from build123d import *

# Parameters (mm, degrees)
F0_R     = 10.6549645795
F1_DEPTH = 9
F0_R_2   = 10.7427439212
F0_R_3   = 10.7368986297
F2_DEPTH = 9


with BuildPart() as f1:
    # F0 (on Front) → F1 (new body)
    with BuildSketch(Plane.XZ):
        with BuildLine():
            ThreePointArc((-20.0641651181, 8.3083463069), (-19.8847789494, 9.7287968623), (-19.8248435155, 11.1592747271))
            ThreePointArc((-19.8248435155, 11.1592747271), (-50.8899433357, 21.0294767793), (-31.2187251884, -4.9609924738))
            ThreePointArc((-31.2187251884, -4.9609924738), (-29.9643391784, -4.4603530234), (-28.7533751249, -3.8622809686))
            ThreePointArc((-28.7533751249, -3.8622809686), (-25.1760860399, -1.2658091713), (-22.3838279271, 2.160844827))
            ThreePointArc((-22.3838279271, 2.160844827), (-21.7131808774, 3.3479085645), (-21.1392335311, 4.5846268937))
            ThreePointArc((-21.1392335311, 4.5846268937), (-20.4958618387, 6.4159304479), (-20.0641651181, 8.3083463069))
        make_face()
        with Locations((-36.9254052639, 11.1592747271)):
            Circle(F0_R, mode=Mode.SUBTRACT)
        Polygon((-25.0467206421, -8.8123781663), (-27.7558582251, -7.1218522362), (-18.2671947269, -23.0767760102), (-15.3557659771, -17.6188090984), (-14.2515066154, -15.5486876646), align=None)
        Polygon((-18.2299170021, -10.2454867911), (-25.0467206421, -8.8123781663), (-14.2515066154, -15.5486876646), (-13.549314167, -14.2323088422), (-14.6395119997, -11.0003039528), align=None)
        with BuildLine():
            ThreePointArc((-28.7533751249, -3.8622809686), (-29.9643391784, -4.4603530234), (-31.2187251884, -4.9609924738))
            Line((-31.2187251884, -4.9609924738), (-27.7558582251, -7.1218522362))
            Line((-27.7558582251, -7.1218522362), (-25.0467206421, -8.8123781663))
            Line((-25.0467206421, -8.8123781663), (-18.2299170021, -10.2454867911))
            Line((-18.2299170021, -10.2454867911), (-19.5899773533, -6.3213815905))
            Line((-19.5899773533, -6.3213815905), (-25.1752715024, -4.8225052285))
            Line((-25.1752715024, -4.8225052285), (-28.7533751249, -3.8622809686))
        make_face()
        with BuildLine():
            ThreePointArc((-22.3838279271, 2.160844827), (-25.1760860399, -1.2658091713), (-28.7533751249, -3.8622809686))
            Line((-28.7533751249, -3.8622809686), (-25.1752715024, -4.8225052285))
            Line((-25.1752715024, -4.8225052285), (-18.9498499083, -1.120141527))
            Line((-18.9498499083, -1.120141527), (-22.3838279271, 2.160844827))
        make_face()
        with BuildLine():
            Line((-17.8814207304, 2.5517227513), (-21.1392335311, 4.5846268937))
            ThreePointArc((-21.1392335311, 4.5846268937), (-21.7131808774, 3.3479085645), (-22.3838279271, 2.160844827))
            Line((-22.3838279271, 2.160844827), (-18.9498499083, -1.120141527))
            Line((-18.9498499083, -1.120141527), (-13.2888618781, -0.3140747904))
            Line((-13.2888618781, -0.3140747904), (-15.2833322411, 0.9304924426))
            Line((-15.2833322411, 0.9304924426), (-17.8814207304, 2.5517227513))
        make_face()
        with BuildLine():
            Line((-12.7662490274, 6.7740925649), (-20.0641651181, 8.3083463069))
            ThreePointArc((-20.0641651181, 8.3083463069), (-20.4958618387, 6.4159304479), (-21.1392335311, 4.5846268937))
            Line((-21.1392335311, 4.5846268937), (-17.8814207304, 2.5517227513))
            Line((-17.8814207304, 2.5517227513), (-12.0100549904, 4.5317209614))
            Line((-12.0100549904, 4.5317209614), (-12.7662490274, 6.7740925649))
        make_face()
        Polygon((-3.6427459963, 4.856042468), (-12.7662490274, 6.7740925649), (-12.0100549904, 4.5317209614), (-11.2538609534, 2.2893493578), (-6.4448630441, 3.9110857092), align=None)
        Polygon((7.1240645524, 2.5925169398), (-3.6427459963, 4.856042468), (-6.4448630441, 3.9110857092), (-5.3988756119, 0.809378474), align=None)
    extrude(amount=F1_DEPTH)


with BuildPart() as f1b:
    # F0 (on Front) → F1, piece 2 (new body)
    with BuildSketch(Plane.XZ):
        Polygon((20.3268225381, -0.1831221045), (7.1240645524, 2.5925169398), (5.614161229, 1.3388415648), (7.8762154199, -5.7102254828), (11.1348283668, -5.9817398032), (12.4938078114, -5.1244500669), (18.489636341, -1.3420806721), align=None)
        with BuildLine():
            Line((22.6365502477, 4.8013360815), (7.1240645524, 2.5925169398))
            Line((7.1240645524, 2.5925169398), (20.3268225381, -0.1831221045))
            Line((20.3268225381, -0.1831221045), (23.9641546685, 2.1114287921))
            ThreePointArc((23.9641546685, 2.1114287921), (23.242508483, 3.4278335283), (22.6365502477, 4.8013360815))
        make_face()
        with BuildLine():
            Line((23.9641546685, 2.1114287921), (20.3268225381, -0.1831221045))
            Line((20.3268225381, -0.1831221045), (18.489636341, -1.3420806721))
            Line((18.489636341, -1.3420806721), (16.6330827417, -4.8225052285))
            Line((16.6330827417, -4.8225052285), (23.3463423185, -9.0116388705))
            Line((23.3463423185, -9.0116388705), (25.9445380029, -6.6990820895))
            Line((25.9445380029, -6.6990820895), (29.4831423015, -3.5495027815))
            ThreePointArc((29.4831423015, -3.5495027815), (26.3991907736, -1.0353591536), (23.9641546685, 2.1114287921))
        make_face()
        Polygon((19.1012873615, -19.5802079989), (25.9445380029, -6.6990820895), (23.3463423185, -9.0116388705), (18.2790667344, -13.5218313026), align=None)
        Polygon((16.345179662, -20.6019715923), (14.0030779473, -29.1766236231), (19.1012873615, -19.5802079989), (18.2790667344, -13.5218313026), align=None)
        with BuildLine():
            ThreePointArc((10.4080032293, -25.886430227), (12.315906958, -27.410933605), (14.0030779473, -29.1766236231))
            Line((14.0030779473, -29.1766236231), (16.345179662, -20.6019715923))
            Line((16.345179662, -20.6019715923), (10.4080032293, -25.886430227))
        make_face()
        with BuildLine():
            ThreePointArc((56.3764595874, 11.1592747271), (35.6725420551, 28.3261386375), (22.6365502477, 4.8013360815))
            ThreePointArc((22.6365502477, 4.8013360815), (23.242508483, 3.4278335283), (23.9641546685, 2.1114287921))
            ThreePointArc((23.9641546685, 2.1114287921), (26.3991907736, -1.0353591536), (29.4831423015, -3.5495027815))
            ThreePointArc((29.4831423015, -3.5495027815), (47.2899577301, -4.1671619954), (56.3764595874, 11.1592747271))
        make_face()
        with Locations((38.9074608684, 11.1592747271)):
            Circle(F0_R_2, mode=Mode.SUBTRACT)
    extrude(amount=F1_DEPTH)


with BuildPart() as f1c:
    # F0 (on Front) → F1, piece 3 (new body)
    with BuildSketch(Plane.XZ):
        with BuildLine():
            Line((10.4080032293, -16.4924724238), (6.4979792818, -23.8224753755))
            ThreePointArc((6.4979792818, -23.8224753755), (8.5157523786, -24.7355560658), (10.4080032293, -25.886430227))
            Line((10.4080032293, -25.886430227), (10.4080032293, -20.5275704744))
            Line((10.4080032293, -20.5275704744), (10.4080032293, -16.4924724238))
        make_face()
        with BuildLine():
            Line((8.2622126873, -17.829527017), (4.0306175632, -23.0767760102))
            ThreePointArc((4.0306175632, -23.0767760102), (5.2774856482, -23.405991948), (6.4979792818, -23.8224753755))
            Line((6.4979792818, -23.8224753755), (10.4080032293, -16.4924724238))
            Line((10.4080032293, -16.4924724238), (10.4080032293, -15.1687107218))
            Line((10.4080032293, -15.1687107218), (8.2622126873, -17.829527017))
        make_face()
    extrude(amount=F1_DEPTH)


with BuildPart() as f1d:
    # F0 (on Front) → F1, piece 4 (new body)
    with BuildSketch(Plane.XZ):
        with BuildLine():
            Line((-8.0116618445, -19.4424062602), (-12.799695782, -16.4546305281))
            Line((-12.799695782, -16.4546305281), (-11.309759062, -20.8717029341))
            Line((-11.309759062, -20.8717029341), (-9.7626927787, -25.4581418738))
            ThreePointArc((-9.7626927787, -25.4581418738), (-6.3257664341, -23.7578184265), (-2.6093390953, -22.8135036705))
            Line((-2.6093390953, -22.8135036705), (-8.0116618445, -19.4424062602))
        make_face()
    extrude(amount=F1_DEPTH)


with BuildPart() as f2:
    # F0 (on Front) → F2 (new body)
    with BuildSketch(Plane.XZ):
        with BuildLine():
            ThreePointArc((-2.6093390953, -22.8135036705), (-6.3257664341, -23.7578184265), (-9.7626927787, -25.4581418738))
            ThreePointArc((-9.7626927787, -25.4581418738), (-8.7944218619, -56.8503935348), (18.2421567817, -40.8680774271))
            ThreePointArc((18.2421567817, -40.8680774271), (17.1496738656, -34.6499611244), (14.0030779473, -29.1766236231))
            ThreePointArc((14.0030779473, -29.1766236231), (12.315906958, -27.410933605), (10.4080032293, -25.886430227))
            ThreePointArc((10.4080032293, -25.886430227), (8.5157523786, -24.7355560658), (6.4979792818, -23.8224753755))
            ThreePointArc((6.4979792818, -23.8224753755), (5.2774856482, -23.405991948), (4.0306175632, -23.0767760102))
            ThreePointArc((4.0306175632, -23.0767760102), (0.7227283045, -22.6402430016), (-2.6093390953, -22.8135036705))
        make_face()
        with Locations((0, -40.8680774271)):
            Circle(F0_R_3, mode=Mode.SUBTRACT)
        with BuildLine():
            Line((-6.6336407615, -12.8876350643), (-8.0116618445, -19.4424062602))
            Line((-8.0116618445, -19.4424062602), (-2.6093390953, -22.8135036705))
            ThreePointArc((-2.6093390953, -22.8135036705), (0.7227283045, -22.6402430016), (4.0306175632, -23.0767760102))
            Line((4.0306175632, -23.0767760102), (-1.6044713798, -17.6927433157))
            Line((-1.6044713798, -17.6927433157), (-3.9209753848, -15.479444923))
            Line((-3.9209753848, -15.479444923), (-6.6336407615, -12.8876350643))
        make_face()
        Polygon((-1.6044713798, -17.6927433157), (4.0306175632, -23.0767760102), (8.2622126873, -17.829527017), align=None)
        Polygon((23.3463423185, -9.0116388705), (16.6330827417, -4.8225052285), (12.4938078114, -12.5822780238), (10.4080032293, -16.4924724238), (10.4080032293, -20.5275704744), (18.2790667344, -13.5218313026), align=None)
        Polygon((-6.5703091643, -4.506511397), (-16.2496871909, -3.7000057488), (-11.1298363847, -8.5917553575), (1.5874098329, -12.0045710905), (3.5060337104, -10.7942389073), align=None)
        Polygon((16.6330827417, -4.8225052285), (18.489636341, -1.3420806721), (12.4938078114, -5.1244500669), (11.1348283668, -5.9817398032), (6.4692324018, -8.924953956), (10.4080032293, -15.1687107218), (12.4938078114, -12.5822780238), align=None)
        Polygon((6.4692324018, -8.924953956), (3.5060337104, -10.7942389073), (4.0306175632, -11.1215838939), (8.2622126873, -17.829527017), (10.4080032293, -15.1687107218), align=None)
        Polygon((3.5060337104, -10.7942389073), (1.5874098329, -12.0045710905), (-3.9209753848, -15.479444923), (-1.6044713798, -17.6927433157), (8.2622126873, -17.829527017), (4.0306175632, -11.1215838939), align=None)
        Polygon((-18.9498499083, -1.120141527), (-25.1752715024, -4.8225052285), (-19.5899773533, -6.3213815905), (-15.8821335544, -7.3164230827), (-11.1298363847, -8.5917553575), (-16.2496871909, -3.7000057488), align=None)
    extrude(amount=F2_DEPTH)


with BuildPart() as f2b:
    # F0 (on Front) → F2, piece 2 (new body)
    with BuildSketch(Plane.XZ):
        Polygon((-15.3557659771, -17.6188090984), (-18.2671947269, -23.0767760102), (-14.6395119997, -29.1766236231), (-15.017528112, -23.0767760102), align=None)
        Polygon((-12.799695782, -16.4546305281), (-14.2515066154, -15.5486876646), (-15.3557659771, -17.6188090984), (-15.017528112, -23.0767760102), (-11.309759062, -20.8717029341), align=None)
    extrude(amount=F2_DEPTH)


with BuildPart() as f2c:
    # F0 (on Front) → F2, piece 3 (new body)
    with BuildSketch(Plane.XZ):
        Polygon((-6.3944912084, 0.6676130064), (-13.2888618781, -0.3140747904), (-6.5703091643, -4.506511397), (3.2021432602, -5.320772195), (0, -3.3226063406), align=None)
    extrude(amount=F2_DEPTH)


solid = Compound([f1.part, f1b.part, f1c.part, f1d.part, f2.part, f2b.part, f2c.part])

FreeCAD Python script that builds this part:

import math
import FreeCAD as App
import Part
import Sketcher

V = App.Vector
Q = App.Units.Quantity

doc = App.newDocument("Part")
body = doc.addObject("PartDesign::Body", "Body")

# Sketch on XZ plane
sketch1 = body.newObject("Sketcher::SketchObject", "Sketch")
sketch1.AttachmentSupport = (doc.getObject("XZ_Plane"), [""])
sketch1.MapMode = "FlatFace"
sketch1.addGeometry(Part.ArcOfCircle(Part.Circle(V(-36.9, 11.2, 0), V(0, 0, 1), 17.1), math.radians(-9.6), math.radians(0)), False)
sketch1.addGeometry(Part.ArcOfCircle(Part.Circle(V(-36.9, 11.2, 0), V(0, 0, 1), 17.1), math.radians(0), math.radians(289)), False)
sketch1.addGeometry(Part.LineSegment(V(-31.2, -5, 0), V(-27.8, -7.1, 0)), False)
sketch1.addGeometry(Part.LineSegment(V(-27.8, -7.1, 0), V(-18.3, -23.1, 0)), False)
sketch1.addGeometry(Part.LineSegment(V(-18.3, -23.1, 0), V(-15.4, -17.6, 0)), False)
sketch1.addGeometry(Part.LineSegment(V(-15.4, -17.6, 0), V(-14.3, -15.5, 0)), False)
sketch1.addGeometry(Part.LineSegment(V(-14.3, -15.5, 0), V(-13.5, -14.2, 0)), False)
sketch1.addGeometry(Part.LineSegment(V(-13.5, -14.2, 0), V(-14.6, -11, 0)), False)
sketch1.addGeometry(Part.LineSegment(V(-14.6, -11, 0), V(-18.2, -10.2, 0)), False)
sketch1.addGeometry(Part.LineSegment(V(-18.2, -10.2, 0), V(-19.6, -6.3, 0)), False)
sketch1.addGeometry(Part.LineSegment(V(-19.6, -6.3, 0), V(-25.2, -4.8, 0)), False)
sketch1.addGeometry(Part.LineSegment(V(-25.2, -4.8, 0), V(-18.9, -1.1, 0)), False)
sketch1.addGeometry(Part.LineSegment(V(-18.9, -1.1, 0), V(-13.3, -0.3, 0)), False)
sketch1.addGeometry(Part.LineSegment(V(-13.3, -0.3, 0), V(-15.3, 0.9, 0)), False)
sketch1.addGeometry(Part.LineSegment(V(-15.3, 0.9, 0), V(-17.9, 2.6, 0)), False)
sketch1.addGeometry(Part.LineSegment(V(-17.9, 2.6, 0), V(-12, 4.5, 0)), False)
sketch1.addGeometry(Part.LineSegment(V(-12, 4.5, 0), V(-11.3, 2.3, 0)), False)
sketch1.addGeometry(Part.LineSegment(V(-11.3, 2.3, 0), V(-6.4, 3.9, 0)), False)
sketch1.addGeometry(Part.LineSegment(V(-6.4, 3.9, 0), V(-5.4, 0.8, 0)), False)
sketch1.addGeometry(Part.LineSegment(V(-5.4, 0.8, 0), V(7.1, 2.6, 0)), False)
sketch1.addGeometry(Part.LineSegment(V(7.1, 2.6, 0), V(-3.6, 4.9, 0)), False)
sketch1.addGeometry(Part.LineSegment(V(-3.6, 4.9, 0), V(-12.8, 6.8, 0)), False)
sketch1.addGeometry(Part.LineSegment(V(-12.8, 6.8, 0), V(-20.1, 8.3, 0)), False)
sketch1.addGeometry(Part.Circle(V(-36.9, 11.2, 0), V(0, 0, 1), 10.7), False)
sketch1.addConstraint(Sketcher.Constraint("Tangent", 0, 2, 1, 1))
sketch1.addConstraint(Sketcher.Constraint("Coincident", 1, 2, 2, 1))
sketch1.addConstraint(Sketcher.Constraint("Coincident", 2, 2, 3, 1))
sketch1.addConstraint(Sketcher.Constraint("Coincident", 3, 2, 4, 1))
sketch1.addConstraint(Sketcher.Constraint("Coincident", 4, 2, 5, 1))
sketch1.addConstraint(Sketcher.Constraint("Coincident", 5, 2, 6, 1))
sketch1.addConstraint(Sketcher.Constraint("Coincident", 6, 2, 7, 1))
sketch1.addConstraint(Sketcher.Constraint("Coincident", 7, 2, 8, 1))
sketch1.addConstraint(Sketcher.Constraint("Coincident", 8, 2, 9, 1))
sketch1.addConstraint(Sketcher.Constraint("Coincident", 9, 2, 10, 1))
sketch1.addConstraint(Sketcher.Constraint("Coincident", 10, 2, 11, 1))
sketch1.addConstraint(Sketcher.Constraint("Coincident", 11, 2, 12, 1))
sketch1.addConstraint(Sketcher.Constraint("Coincident", 12, 2, 13, 1))
sketch1.addConstraint(Sketcher.Constraint("Coincident", 13, 2, 14, 1))
sketch1.addConstraint(Sketcher.Constraint("Coincident", 14, 2, 15, 1))
sketch1.addConstraint(Sketcher.Constraint("Coincident", 15, 2, 16, 1))
sketch1.addConstraint(Sketcher.Constraint("Coincident", 16, 2, 17, 1))
sketch1.addConstraint(Sketcher.Constraint("Coincident", 17, 2, 18, 1))
sketch1.addConstraint(Sketcher.Constraint("Coincident", 18, 2, 19, 1))
sketch1.addConstraint(Sketcher.Constraint("Coincident", 19, 2, 20, 1))
sketch1.addConstraint(Sketcher.Constraint("Coincident", 20, 2, 21, 1))
sketch1.addConstraint(Sketcher.Constraint("Coincident", 21, 2, 22, 1))
sketch1.addConstraint(Sketcher.Constraint("Coincident", 22, 2, 0, 1))
sketch1.addConstraint(Sketcher.Constraint("Coincident", 23, 3, 0, 3))
sketch1.addConstraint(Sketcher.Constraint("Equal", 0, 1))
sketch1.addConstraint(Sketcher.Constraint("Parallel", 4, 5))
sketch1.addConstraint(Sketcher.Constraint("Parallel", 5, 6))
sketch1.addConstraint(Sketcher.Constraint("Perpendicular", 3, 11))
sketch1.addConstraint(Sketcher.Constraint("Parallel", 2, 13))
sketch1.addConstraint(Sketcher.Constraint("Parallel", 13, 14))
sketch1.addConstraint(Sketcher.Constraint("Perpendicular", 15, 16))
sketch1.addConstraint(Sketcher.Constraint("Perpendicular", 16, 17))
sketch1.addConstraint(Sketcher.Constraint("Perpendicular", 17, 18))
sketch1.addConstraint(Sketcher.Constraint("Parallel", 12, 19))
sketch1.addConstraint(Sketcher.Constraint("Parallel", 8, 20))
sketch1.addConstraint(Sketcher.Constraint("Parallel", 20, 21))
sketch1.addConstraint(Sketcher.Constraint("Parallel", 21, 22))
sketch1.addConstraint(Sketcher.Constraint("Horizontal", 23, 3, 0, 2))
sketch1.addConstraint(Sketcher.Constraint("Diameter", 23, 21.309929))
sketch1.addConstraint(Sketcher.Constraint("Radius", 0, 17.100562))
sketch1.addConstraint(Sketcher.Constraint("DistanceY", 14, 2, 15, 2, 1.979998))
sketch1.addConstraint(Sketcher.Constraint("DistanceX", 12, 2, 16, 2, 2.035001))
sketch1.addConstraint(Sketcher.Constraint("DistanceX", 12, 2, 17, 2, 6.843999))
sketch1.addConstraint(Sketcher.Constraint("DistanceY", 4, 2, 6, 2, 3.3865))
sketch1.addConstraint(Sketcher.Constraint("DistanceY", 5, 2, 8, 2, 5.303201))
sketch1.addConstraint(Sketcher.Constraint("DistanceY", 7, 2, 10, 2, 6.177799))
sketch1.addConstraint(Sketcher.Constraint("DistanceY", 13, 2, 21, 2, 5.8436))
sketch1.addConstraint(Sketcher.Constraint("Distance", 2, 4.08176))
sketch1.addConstraint(Sketcher.Constraint("Distance", 5, 2.346229))
sketch1.addConstraint(Sketcher.Constraint("Distance", 7, 3.410922))
sketch1.addConstraint(Sketcher.Constraint("Distance", 8, 3.66889))
sketch1.addConstraint(Sketcher.Constraint("Distance", 10, 5.782918))
sketch1.addConstraint(Sketcher.Constraint("Distance", 11, 7.24316))
sketch1.addConstraint(Sketcher.Constraint("Distance", 18, 3.273328))
sketch1.addConstraint(Sketcher.Constraint("Distance", 20, 11.002171))
sketch1.addConstraint(Sketcher.Constraint("Distance", 21, 9.322941))
sketch1.addConstraint(Sketcher.Constraint("DistanceX", 2, 2, -1, 1, 27.755858))
sketch1.addConstraint(Sketcher.Constraint("DistanceY", 4, 2, -1, 1, 17.618809))
sketch1.addConstraint(Sketcher.Constraint("DistanceY", 9, 2, -1, 1, 6.321382))
sketch1.addConstraint(Sketcher.Constraint("DistanceX", 10, 2, -1, 1, 25.175272))
sketch1.addConstraint(Sketcher.Constraint("DistanceX", 11, 2, -1, 1, 18.94985))
sketch1.addConstraint(Sketcher.Constraint("DistanceY", 11, 2, -1, 1, 1.120142))
sketch1.addConstraint(Sketcher.Constraint("DistanceX", 12, 2, -1, 1, 13.288862))
sketch1.addConstraint(Sketcher.Constraint("DistanceX", 14, 2, -1, 1, 17.881421))
sketch1.addConstraint(Sketcher.Constraint("DistanceY", -1, 1, 15, 2, 4.531721))
sketch1.addConstraint(Sketcher.Constraint("DistanceY", -1, 1, 16, 2, 2.289349))
sketch1.addConstraint(Sketcher.Constraint("DistanceX", 21, 2, -1, 1, 12.766249))
sketch1.addConstraint(Sketcher.Constraint("DistanceX", 0, 3, 1, 2, 5.70668))
sketch1.addConstraint(Sketcher.Constraint("DistanceY", 2, 2, 1, 2, 2.16086))
sketch1.addConstraint(Sketcher.Constraint("DistanceX", 1, 2, 3, 2, 12.95153))
sketch1.addConstraint(Sketcher.Constraint("DistanceX", 3, 2, 4, 2, 2.911429))
sketch1.addConstraint(Sketcher.Constraint("DistanceX", 4, 2, 5, 2, 1.104259))
pad1 = body.newObject("PartDesign::Pad", "Pad")
pad1.Profile = sketch1
pad1.Length = 9
body2 = doc.addObject("PartDesign::Body", "Body001")

# Sketch on XZ plane
sketch2 = body2.newObject("Sketcher::SketchObject", "Sketch001")
sketch2.AttachmentSupport = (doc.getObject("XZ_Plane001"), [""])
sketch2.MapMode = "FlatFace"
sketch2.addGeometry(Part.LineSegment(V(7.1, 2.6, 0), V(5.6, 1.3, 0)), False)
sketch2.addGeometry(Part.LineSegment(V(5.6, 1.3, 0), V(7.9, -5.7, 0)), False)
sketch2.addGeometry(Part.LineSegment(V(7.9, -5.7, 0), V(11.1, -6, 0)), False)
sketch2.addGeometry(Part.LineSegment(V(11.1, -6, 0), V(12.5, -5.1, 0)), False)
sketch2.addGeometry(Part.LineSegment(V(12.5, -5.1, 0), V(18.5, -1.3, 0)), False)
sketch2.addGeometry(Part.LineSegment(V(18.5, -1.3, 0), V(16.6, -4.8, 0)), False)
sketch2.addGeometry(Part.LineSegment(V(16.6, -4.8, 0), V(23.3, -9, 0)), False)
sketch2.addGeometry(Part.LineSegment(V(23.3, -9, 0), V(18.3, -13.5, 0)), False)
sketch2.addGeometry(Part.LineSegment(V(18.3, -13.5, 0), V(16.3, -20.6, 0)), False)
sketch2.addGeometry(Part.LineSegment(V(16.3, -20.6, 0), V(10.4, -25.9, 0)), False)
sketch2.addGeometry(Part.ArcOfCircle(Part.Circle(V(0, -40.9, 0), V(0, 0, 1), 18.2), math.radians(39.86), math.radians(55.21)), False)
sketch2.addGeometry(Part.LineSegment(V(14, -29.2, 0), V(19.1, -19.6, 0)), False)
sketch2.addGeometry(Part.LineSegment(V(19.1, -19.6, 0), V(25.9, -6.7, 0)), False)
sketch2.addGeometry(Part.LineSegment(V(25.9, -6.7, 0), V(29.5, -3.5, 0)), False)
sketch2.addGeometry(Part.ArcOfCircle(Part.Circle(V(38.9, 11.2, 0), V(0, 0, 1), 17.5), math.radians(-123), math.radians(201)), False)
sketch2.addGeometry(Part.LineSegment(V(22.6, 4.8, 0), V(7.1, 2.6, 0)), False)
sketch2.addGeometry(Part.Circle(V(38.9, 11.2, 0), V(0, 0, 1), 10.7), False)
sketch2.addConstraint(Sketcher.Constraint("Coincident", 0, 2, 1, 1))
sketch2.addConstraint(Sketcher.Constraint("Coincident", 1, 2, 2, 1))
sketch2.addConstraint(Sketcher.Constraint("Coincident", 2, 2, 3, 1))
sketch2.addConstraint(Sketcher.Constraint("Coincident", 3, 2, 4, 1))
sketch2.addConstraint(Sketcher.Constraint("Coincident", 4, 2, 5, 1))
sketch2.addConstraint(Sketcher.Constraint("Coincident", 5, 2, 6, 1))
sketch2.addConstraint(Sketcher.Constraint("Coincident", 6, 2, 7, 1))
sketch2.addConstraint(Sketcher.Constraint("Coincident", 7, 2, 8, 1))
sketch2.addConstraint(Sketcher.Constraint("Coincident", 8, 2, 9, 1))
sketch2.addConstraint(Sketcher.Constraint("Coincident", 9, 2, 10, 2))
sketch2.addConstraint(Sketcher.Constraint("Coincident", 10, 1, 11, 1))
sketch2.addConstraint(Sketcher.Constraint("Coincident", 11, 2, 12, 1))
sketch2.addConstraint(Sketcher.Constraint("Coincident", 12, 2, 13, 1))
sketch2.addConstraint(Sketcher.Constraint("Coincident", 13, 2, 14, 1))
sketch2.addConstraint(Sketcher.Constraint("Coincident", 14, 2, 15, 1))
sketch2.addConstraint(Sketcher.Constraint("Coincident", 15, 2, 0, 1))
sketch2.addConstraint(Sketcher.Constraint("Coincident", 16, 3, 14, 3))
sketch2.addConstraint(Sketcher.Constraint("PointOnObject", 10, 3, -2))
sketch2.addConstraint(Sketcher.Constraint("Parallel", 3, 4))
sketch2.addConstraint(Sketcher.Constraint("Parallel", 7, 9))
sketch2.addConstraint(Sketcher.Constraint("Parallel", 11, 12))
sketch2.addConstraint(Sketcher.Constraint("Parallel", 9, 13))
sketch2.addConstraint(Sketcher.Constraint("Radius", 14, 17.468999))
sketch2.addConstraint(Sketcher.Constraint("Angle", 11, Q("62.019997 deg")))
sketch2.addConstraint(Sketcher.Constraint("Diameter", 16, 21.485488))
sketch2.addConstraint(Sketcher.Constraint("Radius", 10, 18.242157))
sketch2.addConstraint(Sketcher.Constraint("DistanceY", 12, 2, 4, 2, 5.357001))
sketch2.addConstraint(Sketcher.Constraint("DistanceX", 0, 2, 14, 3, 33.2933))
sketch2.addConstraint(Sketcher.Constraint("DistanceY", 1, 2, 14, 3, 16.8695))
sketch2.addConstraint(Sketcher.Constraint("DistanceY", 6, 2, 2, 2, 3.029899))
sketch2.addConstraint(Sketcher.Constraint("DistanceY", 9, 2, 7, 2, 12.364599))
sketch2.addConstraint(Sketcher.Constraint("DistanceX", 10, 1, 8, 2, 2.342102))
sketch2.addConstraint(Sketcher.Constraint("DistanceX", 4, 2, 12, 2, 7.454902))
sketch2.addConstraint(Sketcher.Constraint("DistanceX", 6, 2, 13, 2, 6.1368))
sketch2.addConstraint(Sketcher.Constraint("Distance", 3, 1.606789))
sketch2.addConstraint(Sketcher.Constraint("Distance", 6, 7.913071))
sketch2.addConstraint(Sketcher.Constraint("Distance", 7, 6.783739))
sketch2.addConstraint(Sketcher.Constraint("Distance", 12, 14.586072))
sketch2.addConstraint(Sketcher.Constraint("DistanceX", -1, 1, 14, 3, 38.907461))
sketch2.addConstraint(Sketcher.Constraint("DistanceY", -1, 1, 0, 2, 1.338842))
sketch2.addConstraint(Sketcher.Constraint("DistanceX", -1, 1, 2, 2, 11.134828))
sketch2.addConstraint(Sketcher.Constraint("DistanceY", 2, 2, -1, 1, 5.98174))
sketch2.addConstraint(Sketcher.Constraint("DistanceY", 3, 2, -1, 1, 5.12445))
sketch2.addConstraint(Sketcher.Constraint("DistanceY", 4, 2, -1, 1, 1.342081))
sketch2.addConstraint(Sketcher.Constraint("DistanceY", 7, 2, -1, 1, 13.521831))
sketch2.addConstraint(Sketcher.Constraint("DistanceX", -1, 1, 8, 2, 16.34518))
sketch2.addConstraint(Sketcher.Constraint("DistanceX", -1, 1, 14, 2, 22.63655))
sketch2.addConstraint(Sketcher.Constraint("DistanceY", 10, 3, 1, 2, 35.157852))
sketch2.addConstraint(Sketcher.Constraint("DistanceX", 1, 2, 4, 2, 10.613421))
sketch2.addConstraint(Sketcher.Constraint("DistanceY", 1, 2, 5, 2, 0.88772))
sketch2.addConstraint(Sketcher.Constraint("DistanceX", 15, 2, 1, 2, 0.752151))
sketch2.addConstraint(Sketcher.Constraint("Distance", 0, 1.962526))
pad2 = body2.newObject("PartDesign::Pad", "Pad001")
pad2.Profile = sketch2
pad2.Length = 9
body3 = doc.addObject("PartDesign::Body", "Body002")

# Sketch on XZ plane
sketch3 = body3.newObject("Sketcher::SketchObject", "Sketch002")
sketch3.AttachmentSupport = (doc.getObject("XZ_Plane002"), [""])
sketch3.MapMode = "FlatFace"
sketch3.addGeometry(Part.ArcOfCircle(Part.Circle(V(0, -40.9, 0), V(0, 0, 1), 18.2), math.radians(55.21), math.radians(69.13)), False)
sketch3.addGeometry(Part.LineSegment(V(10.4, -25.9, 0), V(10.4, -15.2, 0)), False)
sketch3.addGeometry(Part.LineSegment(V(10.4, -15.2, 0), V(8.3, -17.8, 0)), False)
sketch3.addGeometry(Part.LineSegment(V(8.3, -17.8, 0), V(4, -23.1, 0)), False)
sketch3.addGeometry(Part.ArcOfCircle(Part.Circle(V(0, -40.9, 0), V(0, 0, 1), 18.2), math.radians(69.13), math.radians(77.24)), False)
sketch3.addConstraint(Sketcher.Constraint("Coincident", 0, 1, 1, 1))
sketch3.addConstraint(Sketcher.Constraint("Coincident", 1, 2, 2, 1))
sketch3.addConstraint(Sketcher.Constraint("Coincident", 2, 2, 3, 1))
sketch3.addConstraint(Sketcher.Constraint("Coincident", 3, 2, 4, 2))
sketch3.addConstraint(Sketcher.Constraint("Tangent", 4, 1, 0, 2))
sketch3.addConstraint(Sketcher.Constraint("Vertical", 1))
sketch3.addConstraint(Sketcher.Constraint("Equal", 0, 4))
sketch3.addConstraint(Sketcher.Constraint("PointOnObject", 0, 3, -2))
sketch3.addConstraint(Sketcher.Constraint("Parallel", 2, 3))
sketch3.addConstraint(Sketcher.Constraint("Radius", 0, 18.242157))
sketch3.addConstraint(Sketcher.Constraint("DistanceY", 1, 1, 1, 2, 10.71772))
sketch3.addConstraint(Sketcher.Constraint("DistanceY", 0, 3, 3, 2, 17.791301))
sketch3.addConstraint(Sketcher.Constraint("DistanceY", 4, 1, 3, 2, 0.745699))
sketch3.addConstraint(Sketcher.Constraint("Distance", 2, 3.418239))
sketch3.addConstraint(Sketcher.Constraint("Distance", 3, 6.740921))
sketch3.addConstraint(Sketcher.Constraint("DistanceY", 0, 1, -1, 1, 25.88643))
pad3 = body3.newObject("PartDesign::Pad", "Pad002")
pad3.Profile = sketch3
pad3.Length = 9
body4 = doc.addObject("PartDesign::Body", "Body003")

# Sketch on XZ plane
sketch4 = body4.newObject("Sketcher::SketchObject", "Sketch003")
sketch4.AttachmentSupport = (doc.getObject("XZ_Plane003"), [""])
sketch4.MapMode = "FlatFace"
sketch4.addGeometry(Part.LineSegment(V(-8, -19.4, 0), V(-12.8, -16.5, 0)), False)
sketch4.addGeometry(Part.LineSegment(V(-12.8, -16.5, 0), V(-11.3, -20.9, 0)), False)
sketch4.addGeometry(Part.LineSegment(V(-11.3, -20.9, 0), V(-9.8, -25.5, 0)), False)
sketch4.addGeometry(Part.ArcOfCircle(Part.Circle(V(0, -40.9, 0), V(0, 0, 1), 18.2), math.radians(98), math.radians(122)), False)
sketch4.addGeometry(Part.LineSegment(V(-2.6, -22.8, 0), V(-8, -19.4, 0)), False)
sketch4.addConstraint(Sketcher.Constraint("Coincident", 0, 2, 1, 1))
sketch4.addConstraint(Sketcher.Constraint("Coincident", 1, 2, 2, 1))
sketch4.addConstraint(Sketcher.Constraint("Coincident", 2, 2, 3, 2))
sketch4.addConstraint(Sketcher.Constraint("Coincident", 3, 1, 4, 1))
sketch4.addConstraint(Sketcher.Constraint("Coincident", 4, 2, 0, 1))
sketch4.addConstraint(Sketcher.Constraint("PointOnObject", 3, 3, -2))
sketch4.addConstraint(Sketcher.Constraint("Parallel", 1, 2))
sketch4.addConstraint(Sketcher.Constraint("Parallel", 0, 4))
sketch4.addConstraint(Sketcher.Constraint("Radius", 3, 18.242157))
sketch4.addConstraint(Sketcher.Constraint("DistanceY", 3, 1, 1, 2, 1.941801))
sketch4.addConstraint(Sketcher.Constraint("Distance", 4, 6.36784))
sketch4.addConstraint(Sketcher.Constraint("DistanceY", 0, 2, -1, 1, 16.454631))
sketch4.addConstraint(Sketcher.Constraint("DistanceX", 1, 2, -1, 1, 11.309759))
sketch4.addConstraint(Sketcher.Constraint("DistanceY", 2, 2, -1, 1, 25.458142))
sketch4.addConstraint(Sketcher.Constraint("DistanceX", 3, 1, -1, 1, 2.609339))
sketch4.addConstraint(Sketcher.Constraint("DistanceX", 4, 2, -1, 1, 8.011662))
pad4 = body4.newObject("PartDesign::Pad", "Pad003")
pad4.Profile = sketch4
pad4.Length = 9
body5 = doc.addObject("PartDesign::Body", "Body004")

# Sketch on XZ plane
sketch5 = body5.newObject("Sketcher::SketchObject", "Sketch004")
sketch5.AttachmentSupport = (doc.getObject("XZ_Plane004"), [""])
sketch5.MapMode = "FlatFace"
sketch5.addGeometry(Part.ArcOfCircle(Part.Circle(V(0, -40.868077, 0), V(0, 0, 1), 18.242157), math.radians(98.223736), math.radians(122.355581)), False)
sketch5.addGeometry(Part.ArcOfCircle(Part.Circle(V(0, -40.868077, 0), V(0, 0, 1), 18.242157), math.radians(122.355581), math.radians(360)), False)
sketch5.addGeometry(Part.ArcOfCircle(Part.Circle(V(0, -40.868077, 0), V(0, 0, 1), 18.242157), math.radians(0), math.radians(39.85919)), False)
sketch5.addGeometry(Part.ArcOfCircle(Part.Circle(V(0, -40.868077, 0), V(0, 0, 1), 18.242157), math.radians(39.85919), math.radians(55.211639)), False)
sketch5.addGeometry(Part.ArcOfCircle(Part.Circle(V(0, -40.868077, 0), V(0, 0, 1), 18.242157), math.radians(55.211639), math.radians(69.132579)), False)
sketch5.addGeometry(Part.ArcOfCircle(Part.Circle(V(0, -40.868077, 0), V(0, 0, 1), 18.242157), math.radians(69.132579), math.radians(77.235121)), False)
sketch5.addGeometry(Part.LineSegment(V(4.030618, -23.076776, 0), V(8.262213, -17.829527, 0)), False)
sketch5.addGeometry(Part.LineSegment(V(8.262213, -17.829527, 0), V(10.408003, -15.168711, 0)), False)
sketch5.addGeometry(Part.LineSegment(V(10.408003, -15.168711, 0), V(12.493808, -12.582278, 0)), False)
sketch5.addGeometry(Part.LineSegment(V(12.493808, -12.582278, 0), V(10.408003, -16.492472, 0)), False)
sketch5.addGeometry(Part.LineSegment(V(10.408003, -16.492472, 0), V(10.408003, -20.52757, 0)), False)
sketch5.addGeometry(Part.LineSegment(V(10.408003, -20.52757, 0), V(18.279067, -13.521831, 0)), False)
sketch5.addGeometry(Part.LineSegment(V(18.279067, -13.521831, 0), V(23.346342, -9.011639, 0)), False)
sketch5.addGeometry(Part.LineSegment(V(23.346342, -9.011639, 0), V(16.633083, -4.822505, 0)), False)
sketch5.addGeometry(Part.LineSegment(V(16.633083, -4.822505, 0), V(18.489636, -1.342081, 0)), False)
sketch5.addGeometry(Part.LineSegment(V(18.489636, -1.342081, 0), V(12.493808, -5.12445, 0)), False)
sketch5.addGeometry(Part.LineSegment(V(12.493808, -5.12445, 0), V(11.134828, -5.98174, 0)), False)
sketch5.addGeometry(Part.LineSegment(V(11.134828, -5.98174, 0), V(6.469232, -8.924954, 0)), False)
sketch5.addGeometry(Part.LineSegment(V(6.469232, -8.924954, 0), V(3.506034, -10.794239, 0)), False)
sketch5.addGeometry(Part.LineSegment(V(3.506034, -10.794239, 0), V(-6.570309, -4.506511, 0)), False)
sketch5.addGeometry(Part.LineSegment(V(-6.570309, -4.506511, 0), V(-16.249687, -3.700006, 0)), False)
sketch5.addGeometry(Part.LineSegment(V(-16.249687, -3.700006, 0), V(-18.94985, -1.120142, 0)), False)
sketch5.addGeometry(Part.LineSegment(V(-18.94985, -1.120142, 0), V(-25.175272, -4.822505, 0)), False)
sketch5.addGeometry(Part.LineSegment(V(-25.175272, -4.822505, 0), V(-19.589977, -6.321382, 0)), False)
sketch5.addGeometry(Part.LineSegment(V(-19.589977, -6.321382, 0), V(-15.882134, -7.316423, 0)), False)
sketch5.addGeometry(Part.LineSegment(V(-15.882134, -7.316423, 0), V(-11.129836, -8.591755, 0)), False)
sketch5.addGeometry(Part.LineSegment(V(-11.129836, -8.591755, 0), V(1.58741, -12.004571, 0)), False)
sketch5.addGeometry(Part.LineSegment(V(1.58741, -12.004571, 0), V(-3.920975, -15.479445, 0)), False)
sketch5.addGeometry(Part.LineSegment(V(-3.920975, -15.479445, 0), V(-6.633641, -12.887635, 0)), False)
sketch5.addGeometry(Part.LineSegment(V(-6.633641, -12.887635, 0), V(-8.011662, -19.442406, 0)), False)
sketch5.addGeometry(Part.LineSegment(V(-8.011662, -19.442406, 0), V(-2.609339, -22.813504, 0)), False)
sketch5.addGeometry(Part.Circle(V(0, -40.868077, 0), V(0, 0, 1), 10.736899), False)
sketch5.addConstraint(Sketcher.Constraint("Coincident", 0, 2, 1, 1))
sketch5.addConstraint(Sketcher.Constraint("Coincident", 1, 2, 2, 1))
sketch5.addConstraint(Sketcher.Constraint("Coincident", 2, 2, 3, 1))
sketch5.addConstraint(Sketcher.Constraint("Coincident", 3, 2, 4, 1))
sketch5.addConstraint(Sketcher.Constraint("Coincident", 4, 2, 5, 1))
sketch5.addConstraint(Sketcher.Constraint("Coincident", 5, 2, 6, 1))
sketch5.addConstraint(Sketcher.Constraint("Coincident", 6, 2, 7, 1))
sketch5.addConstraint(Sketcher.Constraint("Coincident", 7, 2, 8, 1))
sketch5.addConstraint(Sketcher.Constraint("Coincident", 8, 2, 9, 1))
sketch5.addConstraint(Sketcher.Constraint("Coincident", 9, 2, 10, 1))
sketch5.addConstraint(Sketcher.Constraint("Coincident", 10, 2, 11, 1))
sketch5.addConstraint(Sketcher.Constraint("Coincident", 11, 2, 12, 1))
sketch5.addConstraint(Sketcher.Constraint("Coincident", 12, 2, 13, 1))
sketch5.addConstraint(Sketcher.Constraint("Coincident", 13, 2, 14, 1))
sketch5.addConstraint(Sketcher.Constraint("Coincident", 14, 2, 15, 1))
sketch5.addConstraint(Sketcher.Constraint("Coincident", 15, 2, 16, 1))
sketch5.addConstraint(Sketcher.Constraint("Coincident", 16, 2, 17, 1))
sketch5.addConstraint(Sketcher.Constraint("Coincident", 17, 2, 18, 1))
sketch5.addConstraint(Sketcher.Constraint("Coincident", 18, 2, 19, 1))
sketch5.addConstraint(Sketcher.Constraint("Coincident", 19, 2, 20, 1))
sketch5.addConstraint(Sketcher.Constraint("Coincident", 20, 2, 21, 1))
sketch5.addConstraint(Sketcher.Constraint("Coincident", 21, 2, 22, 1))
sketch5.addConstraint(Sketcher.Constraint("Coincident", 22, 2, 23, 1))
sketch5.addConstraint(Sketcher.Constraint("Coincident", 23, 2, 24, 1))
sketch5.addConstraint(Sketcher.Constraint("Coincident", 24, 2, 25, 1))
sketch5.addConstraint(Sketcher.Constraint("Coincident", 25, 2, 26, 1))
sketch5.addConstraint(Sketcher.Constraint("Coincident", 26, 2, 27, 1))
sketch5.addConstraint(Sketcher.Constraint("Coincident", 27, 2, 28, 1))
sketch5.addConstraint(Sketcher.Constraint("Coincident", 28, 2, 29, 1))
sketch5.addConstraint(Sketcher.Constraint("Coincident", 29, 2, 30, 1))
sketch5.addConstraint(Sketcher.Constraint("Coincident", 30, 2, 0, 1))
sketch5.addConstraint(Sketcher.Constraint("Vertical", 10))
sketch5.addConstraint(Sketcher.Constraint("Coincident", 1, 3, 0, 3))
sketch5.addConstraint(Sketcher.Constraint("Coincident", 2, 3, 0, 3))
sketch5.addConstraint(Sketcher.Constraint("Coincident", 3, 3, 0, 3))
sketch5.addConstraint(Sketcher.Constraint("Coincident", 4, 3, 0, 3))
sketch5.addConstraint(Sketcher.Constraint("Coincident", 5, 3, 0, 3))
sketch5.addConstraint(Sketcher.Constraint("Coincident", 31, 3, 0, 3))
sketch5.addConstraint(Sketcher.Constraint("PointOnObject", 0, 3, -2))
sketch5.addConstraint(Sketcher.Constraint("Diameter", 31, 21.473797))
sketch5.addConstraint(Sketcher.Constraint("DistanceY", 10, 2, 10, 1, 4.035098))
sketch5.addConstraint(Sketcher.Constraint("Radius", 0, 18.242157))
sketch5.addConstraint(Sketcher.Constraint("DistanceY", 0, 2, 21, 2, 24.338))
sketch5.addConstraint(Sketcher.Constraint("DistanceX", 4, 2, 2, 2, 7.505099))
sketch5.addConstraint(Sketcher.Constraint("DistanceY", 4, 2, 5, 2, 0.745699))
sketch5.addConstraint(Sketcher.Constraint("DistanceY", 2, 3, 5, 2, 17.791301))
sketch5.addConstraint(Sketcher.Constraint("DistanceX", 18, 2, 17, 2, 2.963199))
sketch5.addConstraint(Sketcher.Constraint("DistanceY", 18, 2, 16, 2, 4.812499))
sketch5.addConstraint(Sketcher.Constraint("DistanceY", 22, 2, 20, 2, 1.122499))
sketch5.addConstraint(Sketcher.Constraint("DistanceY", 9, 2, 26, 2, 4.487901))
sketch5.addConstraint(Sketcher.Constraint("Distance", 6, 6.740921))
sketch5.addConstraint(Sketcher.Constraint("Distance", 7, 3.418239))
sketch5.addConstraint(Sketcher.Constraint("Distance", 8, 3.322682))
sketch5.addConstraint(Sketcher.Constraint("Distance", 11, 10.537268))
sketch5.addConstraint(Sketcher.Constraint("Distance", 12, 6.783739))
sketch5.addConstraint(Sketcher.Constraint("Distance", 13, 7.913071))
sketch5.addConstraint(Sketcher.Constraint("Distance", 16, 1.606789))
sketch5.addConstraint(Sketcher.Constraint("Distance", 20, 9.71292))
sketch5.addConstraint(Sketcher.Constraint("Distance", 21, 3.734512))
sketch5.addConstraint(Sketcher.Constraint("Distance", 22, 7.24316))
sketch5.addConstraint(Sketcher.Constraint("Distance", 23, 5.782918))
sketch5.addConstraint(Sketcher.Constraint("Distance", 24, 3.839038))
sketch5.addConstraint(Sketcher.Constraint("Distance", 26, 13.167219))
sketch5.addConstraint(Sketcher.Constraint("Distance", 30, 6.36784))
sketch5.addConstraint(Sketcher.Constraint("DistanceY", 0, 2, -1, 1, 25.458142))
sketch5.addConstraint(Sketcher.Constraint("DistanceY", 3, 2, -1, 1, 25.88643))
sketch5.addConstraint(Sketcher.Constraint("DistanceY", 7, 2, -1, 1, 15.168711))
sketch5.addConstraint(Sketcher.Constraint("DistanceY", 8, 2, -1, 1, 12.582278))
sketch5.addConstraint(Sketcher.Constraint("DistanceY", 10, 2, -1, 1, 20.52757))
sketch5.addConstraint(Sketcher.Constraint("DistanceY", 11, 2, -1, 1, 13.521831))
sketch5.addConstraint(Sketcher.Constraint("DistanceY", 12, 2, -1, 1, 9.011639))
sketch5.addConstraint(Sketcher.Constraint("DistanceY", 14, 2, -1, 1, 1.342081))
sketch5.addConstraint(Sketcher.Constraint("DistanceY", 15, 2, -1, 1, 5.12445))
sketch5.addConstraint(Sketcher.Constraint("DistanceX", -1, 1, 16, 2, 11.134828))
sketch5.addConstraint(Sketcher.Constraint("DistanceY", 16, 2, -1, 1, 5.98174))
sketch5.addConstraint(Sketcher.Constraint("DistanceX", 19, 2, -1, 1, 6.570309))
sketch5.addConstraint(Sketcher.Constraint("DistanceY", 19, 2, -1, 1, 4.506511))
sketch5.addConstraint(Sketcher.Constraint("DistanceX", 21, 2, -1, 1, 18.94985))
sketch5.addConstraint(Sketcher.Constraint("DistanceY", 23, 2, -1, 1, 6.321382))
sketch5.addConstraint(Sketcher.Constraint("DistanceX", -1, 1, 26, 2, 1.58741))
sketch5.addConstraint(Sketcher.Constraint("DistanceX", 28, 2, -1, 1, 6.633641))
sketch5.addConstraint(Sketcher.Constraint("DistanceX", 29, 2, -1, 1, 8.011662))
sketch5.addConstraint(Sketcher.Constraint("DistanceX", 30, 2, -1, 1, 2.609339))
sketch5.addConstraint(Sketcher.Constraint("DistanceX", 0, 2, 5, 2, 13.79331))
sketch5.addConstraint(Sketcher.Constraint("DistanceY", 4, 2, 6, 2, 5.992948))
sketch5.addConstraint(Sketcher.Constraint("DistanceX", 6, 2, 9, 2, 2.145791))
sketch5.addConstraint(Sketcher.Constraint("DistanceX", 13, 2, 12, 2, 6.71326))
sketch5.addConstraint(Sketcher.Constraint("DistanceX", 11, 2, 14, 2, 0.21057))
sketch5.addConstraint(Sketcher.Constraint("DistanceX", 17, 2, 7, 2, 3.938771))
sketch5.addConstraint(Sketcher.Constraint("DistanceY", 9, 2, 17, 2, 7.567518))
sketch5.addConstraint(Sketcher.Constraint("DistanceY", 24, 2, 23, 2, 0.995041))
sketch5.addConstraint(Sketcher.Constraint("DistanceX", 20, 2, 25, 2, 5.119851))
sketch5.addConstraint(Sketcher.Constraint("DistanceX", 27, 2, 18, 2, 7.427009))
sketch5.addConstraint(Sketcher.Constraint("DistanceY", 27, 2, 25, 2, 6.88769))
sketch5.addConstraint(Sketcher.Constraint("DistanceY", 27, 2, 28, 2, 2.59181))
sketch5.addConstraint(Sketcher.Constraint("DistanceY", 1, 2, -1, 1, 40.868077))
pad5 = body5.newObject("PartDesign::Pad", "Pad004")
pad5.Profile = sketch5
pad5.Length = 9
body6 = doc.addObject("PartDesign::Body", "Body005")

# Sketch on XZ plane
sketch6 = body6.newObject("Sketcher::SketchObject", "Sketch005")
sketch6.AttachmentSupport = (doc.getObject("XZ_Plane005"), [""])
sketch6.MapMode = "FlatFace"
sketch6.addGeometry(Part.LineSegment(V(-15.4, -17.6, 0), V(-18.3, -23.1, 0)), False)
sketch6.addGeometry(Part.LineSegment(V(-18.3, -23.1, 0), V(-14.6, -29.2, 0)), False)
sketch6.addGeometry(Part.LineSegment(V(-14.6, -29.2, 0), V(-15, -23.1, 0)), False)
sketch6.addGeometry(Part.LineSegment(V(-15, -23.1, 0), V(-11.3, -20.9, 0)), False)
sketch6.addGeometry(Part.LineSegment(V(-11.3, -20.9, 0), V(-12.8, -16.5, 0)), False)
sketch6.addGeometry(Part.LineSegment(V(-12.8, -16.5, 0), V(-14.3, -15.5, 0)), False)
sketch6.addGeometry(Part.LineSegment(V(-14.3, -15.5, 0), V(-15.4, -17.6, 0)), False)
sketch6.addConstraint(Sketcher.Constraint("Coincident", 0, 2, 1, 1))
sketch6.addConstraint(Sketcher.Constraint("Coincident", 1, 2, 2, 1))
sketch6.addConstraint(Sketcher.Constraint("Coincident", 2, 2, 3, 1))
sketch6.addConstraint(Sketcher.Constraint("Coincident", 3, 2, 4, 1))
sketch6.addConstraint(Sketcher.Constraint("Coincident", 4, 2, 5, 1))
sketch6.addConstraint(Sketcher.Constraint("Coincident", 5, 2, 6, 1))
sketch6.addConstraint(Sketcher.Constraint("Coincident", 6, 2, 0, 1))
sketch6.addConstraint(Sketcher.Constraint("Perpendicular", 1, 3))
sketch6.addConstraint(Sketcher.Constraint("Parallel", 0, 6))
sketch6.addConstraint(Sketcher.Constraint("Horizontal", 0, 2, 2, 2))
sketch6.addConstraint(Sketcher.Constraint("DistanceX", 0, 2, 4, 2, 5.467499))
sketch6.addConstraint(Sketcher.Constraint("Distance", 2, 6.111549))
sketch6.addConstraint(Sketcher.Constraint("Distance", 3, 4.313919))
sketch6.addConstraint(Sketcher.Constraint("Distance", 6, 2.346229))
sketch6.addConstraint(Sketcher.Constraint("DistanceX", 2, 2, -1, 1, 15.017528))
sketch6.addConstraint(Sketcher.Constraint("DistanceX", 3, 2, -1, 1, 11.309759))
sketch6.addConstraint(Sketcher.Constraint("DistanceY", 4, 2, -1, 1, 16.454631))
sketch6.addConstraint(Sketcher.Constraint("DistanceY", 6, 2, -1, 1, 17.618809))
sketch6.addConstraint(Sketcher.Constraint("DistanceY", 1, 2, 3, 2, 8.304921))
sketch6.addConstraint(Sketcher.Constraint("DistanceX", 5, 2, 4, 2, 1.451811))
sketch6.addConstraint(Sketcher.Constraint("DistanceY", 2, 2, 5, 2, 7.528088))
pad6 = body6.newObject("PartDesign::Pad", "Pad005")
pad6.Profile = sketch6
pad6.Length = 9
body7 = doc.addObject("PartDesign::Body", "Body006")

# Sketch on XZ plane
sketch7 = body7.newObject("Sketcher::SketchObject", "Sketch006")
sketch7.AttachmentSupport = (doc.getObject("XZ_Plane006"), [""])
sketch7.MapMode = "FlatFace"
sketch7.addGeometry(Part.LineSegment(V(-6.4, 0.7, 0), V(-13.3, -0.3, 0)), False)
sketch7.addGeometry(Part.LineSegment(V(-13.3, -0.3, 0), V(-6.6, -4.5, 0)), False)
sketch7.addGeometry(Part.LineSegment(V(-6.6, -4.5, 0), V(3.2, -5.3, 0)), False)
sketch7.addGeometry(Part.LineSegment(V(3.2, -5.3, 0), V(0, -3.3, 0)), False)
sketch7.addGeometry(Part.LineSegment(V(0, -3.3, 0), V(-6.4, 0.7, 0)), False)
sketch7.addConstraint(Sketcher.Constraint("Coincident", 0, 2, 1, 1))
sketch7.addConstraint(Sketcher.Constraint("Coincident", 1, 2, 2, 1))
sketch7.addConstraint(Sketcher.Constraint("Coincident", 2, 2, 3, 1))
sketch7.addConstraint(Sketcher.Constraint("Coincident", 3, 2, 4, 1))
sketch7.addConstraint(Sketcher.Constraint("Coincident", 4, 2, 0, 1))
sketch7.addConstraint(Sketcher.Constraint("PointOnObject", 3, 2, -2))
sketch7.addConstraint(Sketcher.Constraint("Parallel", 1, 3))
sketch7.addConstraint(Sketcher.Constraint("Parallel", 3, 4))
sketch7.addConstraint(Sketcher.Constraint("Distance", 0, 6.963911))
sketch7.addConstraint(Sketcher.Constraint("Distance", 1, 7.91931))
sketch7.addConstraint(Sketcher.Constraint("Distance", 3, 3.774439))
sketch7.addConstraint(Sketcher.Constraint("Distance", 4, 7.537332))
sketch7.addConstraint(Sketcher.Constraint("DistanceX", 0, 2, -1, 1, 13.288862))
sketch7.addConstraint(Sketcher.Constraint("DistanceX", 1, 2, -1, 1, 6.570309))
sketch7.addConstraint(Sketcher.Constraint("DistanceY", 1, 2, -1, 1, 4.506511))
pad7 = body7.newObject("PartDesign::Pad", "Pad006")
pad7.Profile = sketch7
pad7.Length = 9

doc.recompute()
